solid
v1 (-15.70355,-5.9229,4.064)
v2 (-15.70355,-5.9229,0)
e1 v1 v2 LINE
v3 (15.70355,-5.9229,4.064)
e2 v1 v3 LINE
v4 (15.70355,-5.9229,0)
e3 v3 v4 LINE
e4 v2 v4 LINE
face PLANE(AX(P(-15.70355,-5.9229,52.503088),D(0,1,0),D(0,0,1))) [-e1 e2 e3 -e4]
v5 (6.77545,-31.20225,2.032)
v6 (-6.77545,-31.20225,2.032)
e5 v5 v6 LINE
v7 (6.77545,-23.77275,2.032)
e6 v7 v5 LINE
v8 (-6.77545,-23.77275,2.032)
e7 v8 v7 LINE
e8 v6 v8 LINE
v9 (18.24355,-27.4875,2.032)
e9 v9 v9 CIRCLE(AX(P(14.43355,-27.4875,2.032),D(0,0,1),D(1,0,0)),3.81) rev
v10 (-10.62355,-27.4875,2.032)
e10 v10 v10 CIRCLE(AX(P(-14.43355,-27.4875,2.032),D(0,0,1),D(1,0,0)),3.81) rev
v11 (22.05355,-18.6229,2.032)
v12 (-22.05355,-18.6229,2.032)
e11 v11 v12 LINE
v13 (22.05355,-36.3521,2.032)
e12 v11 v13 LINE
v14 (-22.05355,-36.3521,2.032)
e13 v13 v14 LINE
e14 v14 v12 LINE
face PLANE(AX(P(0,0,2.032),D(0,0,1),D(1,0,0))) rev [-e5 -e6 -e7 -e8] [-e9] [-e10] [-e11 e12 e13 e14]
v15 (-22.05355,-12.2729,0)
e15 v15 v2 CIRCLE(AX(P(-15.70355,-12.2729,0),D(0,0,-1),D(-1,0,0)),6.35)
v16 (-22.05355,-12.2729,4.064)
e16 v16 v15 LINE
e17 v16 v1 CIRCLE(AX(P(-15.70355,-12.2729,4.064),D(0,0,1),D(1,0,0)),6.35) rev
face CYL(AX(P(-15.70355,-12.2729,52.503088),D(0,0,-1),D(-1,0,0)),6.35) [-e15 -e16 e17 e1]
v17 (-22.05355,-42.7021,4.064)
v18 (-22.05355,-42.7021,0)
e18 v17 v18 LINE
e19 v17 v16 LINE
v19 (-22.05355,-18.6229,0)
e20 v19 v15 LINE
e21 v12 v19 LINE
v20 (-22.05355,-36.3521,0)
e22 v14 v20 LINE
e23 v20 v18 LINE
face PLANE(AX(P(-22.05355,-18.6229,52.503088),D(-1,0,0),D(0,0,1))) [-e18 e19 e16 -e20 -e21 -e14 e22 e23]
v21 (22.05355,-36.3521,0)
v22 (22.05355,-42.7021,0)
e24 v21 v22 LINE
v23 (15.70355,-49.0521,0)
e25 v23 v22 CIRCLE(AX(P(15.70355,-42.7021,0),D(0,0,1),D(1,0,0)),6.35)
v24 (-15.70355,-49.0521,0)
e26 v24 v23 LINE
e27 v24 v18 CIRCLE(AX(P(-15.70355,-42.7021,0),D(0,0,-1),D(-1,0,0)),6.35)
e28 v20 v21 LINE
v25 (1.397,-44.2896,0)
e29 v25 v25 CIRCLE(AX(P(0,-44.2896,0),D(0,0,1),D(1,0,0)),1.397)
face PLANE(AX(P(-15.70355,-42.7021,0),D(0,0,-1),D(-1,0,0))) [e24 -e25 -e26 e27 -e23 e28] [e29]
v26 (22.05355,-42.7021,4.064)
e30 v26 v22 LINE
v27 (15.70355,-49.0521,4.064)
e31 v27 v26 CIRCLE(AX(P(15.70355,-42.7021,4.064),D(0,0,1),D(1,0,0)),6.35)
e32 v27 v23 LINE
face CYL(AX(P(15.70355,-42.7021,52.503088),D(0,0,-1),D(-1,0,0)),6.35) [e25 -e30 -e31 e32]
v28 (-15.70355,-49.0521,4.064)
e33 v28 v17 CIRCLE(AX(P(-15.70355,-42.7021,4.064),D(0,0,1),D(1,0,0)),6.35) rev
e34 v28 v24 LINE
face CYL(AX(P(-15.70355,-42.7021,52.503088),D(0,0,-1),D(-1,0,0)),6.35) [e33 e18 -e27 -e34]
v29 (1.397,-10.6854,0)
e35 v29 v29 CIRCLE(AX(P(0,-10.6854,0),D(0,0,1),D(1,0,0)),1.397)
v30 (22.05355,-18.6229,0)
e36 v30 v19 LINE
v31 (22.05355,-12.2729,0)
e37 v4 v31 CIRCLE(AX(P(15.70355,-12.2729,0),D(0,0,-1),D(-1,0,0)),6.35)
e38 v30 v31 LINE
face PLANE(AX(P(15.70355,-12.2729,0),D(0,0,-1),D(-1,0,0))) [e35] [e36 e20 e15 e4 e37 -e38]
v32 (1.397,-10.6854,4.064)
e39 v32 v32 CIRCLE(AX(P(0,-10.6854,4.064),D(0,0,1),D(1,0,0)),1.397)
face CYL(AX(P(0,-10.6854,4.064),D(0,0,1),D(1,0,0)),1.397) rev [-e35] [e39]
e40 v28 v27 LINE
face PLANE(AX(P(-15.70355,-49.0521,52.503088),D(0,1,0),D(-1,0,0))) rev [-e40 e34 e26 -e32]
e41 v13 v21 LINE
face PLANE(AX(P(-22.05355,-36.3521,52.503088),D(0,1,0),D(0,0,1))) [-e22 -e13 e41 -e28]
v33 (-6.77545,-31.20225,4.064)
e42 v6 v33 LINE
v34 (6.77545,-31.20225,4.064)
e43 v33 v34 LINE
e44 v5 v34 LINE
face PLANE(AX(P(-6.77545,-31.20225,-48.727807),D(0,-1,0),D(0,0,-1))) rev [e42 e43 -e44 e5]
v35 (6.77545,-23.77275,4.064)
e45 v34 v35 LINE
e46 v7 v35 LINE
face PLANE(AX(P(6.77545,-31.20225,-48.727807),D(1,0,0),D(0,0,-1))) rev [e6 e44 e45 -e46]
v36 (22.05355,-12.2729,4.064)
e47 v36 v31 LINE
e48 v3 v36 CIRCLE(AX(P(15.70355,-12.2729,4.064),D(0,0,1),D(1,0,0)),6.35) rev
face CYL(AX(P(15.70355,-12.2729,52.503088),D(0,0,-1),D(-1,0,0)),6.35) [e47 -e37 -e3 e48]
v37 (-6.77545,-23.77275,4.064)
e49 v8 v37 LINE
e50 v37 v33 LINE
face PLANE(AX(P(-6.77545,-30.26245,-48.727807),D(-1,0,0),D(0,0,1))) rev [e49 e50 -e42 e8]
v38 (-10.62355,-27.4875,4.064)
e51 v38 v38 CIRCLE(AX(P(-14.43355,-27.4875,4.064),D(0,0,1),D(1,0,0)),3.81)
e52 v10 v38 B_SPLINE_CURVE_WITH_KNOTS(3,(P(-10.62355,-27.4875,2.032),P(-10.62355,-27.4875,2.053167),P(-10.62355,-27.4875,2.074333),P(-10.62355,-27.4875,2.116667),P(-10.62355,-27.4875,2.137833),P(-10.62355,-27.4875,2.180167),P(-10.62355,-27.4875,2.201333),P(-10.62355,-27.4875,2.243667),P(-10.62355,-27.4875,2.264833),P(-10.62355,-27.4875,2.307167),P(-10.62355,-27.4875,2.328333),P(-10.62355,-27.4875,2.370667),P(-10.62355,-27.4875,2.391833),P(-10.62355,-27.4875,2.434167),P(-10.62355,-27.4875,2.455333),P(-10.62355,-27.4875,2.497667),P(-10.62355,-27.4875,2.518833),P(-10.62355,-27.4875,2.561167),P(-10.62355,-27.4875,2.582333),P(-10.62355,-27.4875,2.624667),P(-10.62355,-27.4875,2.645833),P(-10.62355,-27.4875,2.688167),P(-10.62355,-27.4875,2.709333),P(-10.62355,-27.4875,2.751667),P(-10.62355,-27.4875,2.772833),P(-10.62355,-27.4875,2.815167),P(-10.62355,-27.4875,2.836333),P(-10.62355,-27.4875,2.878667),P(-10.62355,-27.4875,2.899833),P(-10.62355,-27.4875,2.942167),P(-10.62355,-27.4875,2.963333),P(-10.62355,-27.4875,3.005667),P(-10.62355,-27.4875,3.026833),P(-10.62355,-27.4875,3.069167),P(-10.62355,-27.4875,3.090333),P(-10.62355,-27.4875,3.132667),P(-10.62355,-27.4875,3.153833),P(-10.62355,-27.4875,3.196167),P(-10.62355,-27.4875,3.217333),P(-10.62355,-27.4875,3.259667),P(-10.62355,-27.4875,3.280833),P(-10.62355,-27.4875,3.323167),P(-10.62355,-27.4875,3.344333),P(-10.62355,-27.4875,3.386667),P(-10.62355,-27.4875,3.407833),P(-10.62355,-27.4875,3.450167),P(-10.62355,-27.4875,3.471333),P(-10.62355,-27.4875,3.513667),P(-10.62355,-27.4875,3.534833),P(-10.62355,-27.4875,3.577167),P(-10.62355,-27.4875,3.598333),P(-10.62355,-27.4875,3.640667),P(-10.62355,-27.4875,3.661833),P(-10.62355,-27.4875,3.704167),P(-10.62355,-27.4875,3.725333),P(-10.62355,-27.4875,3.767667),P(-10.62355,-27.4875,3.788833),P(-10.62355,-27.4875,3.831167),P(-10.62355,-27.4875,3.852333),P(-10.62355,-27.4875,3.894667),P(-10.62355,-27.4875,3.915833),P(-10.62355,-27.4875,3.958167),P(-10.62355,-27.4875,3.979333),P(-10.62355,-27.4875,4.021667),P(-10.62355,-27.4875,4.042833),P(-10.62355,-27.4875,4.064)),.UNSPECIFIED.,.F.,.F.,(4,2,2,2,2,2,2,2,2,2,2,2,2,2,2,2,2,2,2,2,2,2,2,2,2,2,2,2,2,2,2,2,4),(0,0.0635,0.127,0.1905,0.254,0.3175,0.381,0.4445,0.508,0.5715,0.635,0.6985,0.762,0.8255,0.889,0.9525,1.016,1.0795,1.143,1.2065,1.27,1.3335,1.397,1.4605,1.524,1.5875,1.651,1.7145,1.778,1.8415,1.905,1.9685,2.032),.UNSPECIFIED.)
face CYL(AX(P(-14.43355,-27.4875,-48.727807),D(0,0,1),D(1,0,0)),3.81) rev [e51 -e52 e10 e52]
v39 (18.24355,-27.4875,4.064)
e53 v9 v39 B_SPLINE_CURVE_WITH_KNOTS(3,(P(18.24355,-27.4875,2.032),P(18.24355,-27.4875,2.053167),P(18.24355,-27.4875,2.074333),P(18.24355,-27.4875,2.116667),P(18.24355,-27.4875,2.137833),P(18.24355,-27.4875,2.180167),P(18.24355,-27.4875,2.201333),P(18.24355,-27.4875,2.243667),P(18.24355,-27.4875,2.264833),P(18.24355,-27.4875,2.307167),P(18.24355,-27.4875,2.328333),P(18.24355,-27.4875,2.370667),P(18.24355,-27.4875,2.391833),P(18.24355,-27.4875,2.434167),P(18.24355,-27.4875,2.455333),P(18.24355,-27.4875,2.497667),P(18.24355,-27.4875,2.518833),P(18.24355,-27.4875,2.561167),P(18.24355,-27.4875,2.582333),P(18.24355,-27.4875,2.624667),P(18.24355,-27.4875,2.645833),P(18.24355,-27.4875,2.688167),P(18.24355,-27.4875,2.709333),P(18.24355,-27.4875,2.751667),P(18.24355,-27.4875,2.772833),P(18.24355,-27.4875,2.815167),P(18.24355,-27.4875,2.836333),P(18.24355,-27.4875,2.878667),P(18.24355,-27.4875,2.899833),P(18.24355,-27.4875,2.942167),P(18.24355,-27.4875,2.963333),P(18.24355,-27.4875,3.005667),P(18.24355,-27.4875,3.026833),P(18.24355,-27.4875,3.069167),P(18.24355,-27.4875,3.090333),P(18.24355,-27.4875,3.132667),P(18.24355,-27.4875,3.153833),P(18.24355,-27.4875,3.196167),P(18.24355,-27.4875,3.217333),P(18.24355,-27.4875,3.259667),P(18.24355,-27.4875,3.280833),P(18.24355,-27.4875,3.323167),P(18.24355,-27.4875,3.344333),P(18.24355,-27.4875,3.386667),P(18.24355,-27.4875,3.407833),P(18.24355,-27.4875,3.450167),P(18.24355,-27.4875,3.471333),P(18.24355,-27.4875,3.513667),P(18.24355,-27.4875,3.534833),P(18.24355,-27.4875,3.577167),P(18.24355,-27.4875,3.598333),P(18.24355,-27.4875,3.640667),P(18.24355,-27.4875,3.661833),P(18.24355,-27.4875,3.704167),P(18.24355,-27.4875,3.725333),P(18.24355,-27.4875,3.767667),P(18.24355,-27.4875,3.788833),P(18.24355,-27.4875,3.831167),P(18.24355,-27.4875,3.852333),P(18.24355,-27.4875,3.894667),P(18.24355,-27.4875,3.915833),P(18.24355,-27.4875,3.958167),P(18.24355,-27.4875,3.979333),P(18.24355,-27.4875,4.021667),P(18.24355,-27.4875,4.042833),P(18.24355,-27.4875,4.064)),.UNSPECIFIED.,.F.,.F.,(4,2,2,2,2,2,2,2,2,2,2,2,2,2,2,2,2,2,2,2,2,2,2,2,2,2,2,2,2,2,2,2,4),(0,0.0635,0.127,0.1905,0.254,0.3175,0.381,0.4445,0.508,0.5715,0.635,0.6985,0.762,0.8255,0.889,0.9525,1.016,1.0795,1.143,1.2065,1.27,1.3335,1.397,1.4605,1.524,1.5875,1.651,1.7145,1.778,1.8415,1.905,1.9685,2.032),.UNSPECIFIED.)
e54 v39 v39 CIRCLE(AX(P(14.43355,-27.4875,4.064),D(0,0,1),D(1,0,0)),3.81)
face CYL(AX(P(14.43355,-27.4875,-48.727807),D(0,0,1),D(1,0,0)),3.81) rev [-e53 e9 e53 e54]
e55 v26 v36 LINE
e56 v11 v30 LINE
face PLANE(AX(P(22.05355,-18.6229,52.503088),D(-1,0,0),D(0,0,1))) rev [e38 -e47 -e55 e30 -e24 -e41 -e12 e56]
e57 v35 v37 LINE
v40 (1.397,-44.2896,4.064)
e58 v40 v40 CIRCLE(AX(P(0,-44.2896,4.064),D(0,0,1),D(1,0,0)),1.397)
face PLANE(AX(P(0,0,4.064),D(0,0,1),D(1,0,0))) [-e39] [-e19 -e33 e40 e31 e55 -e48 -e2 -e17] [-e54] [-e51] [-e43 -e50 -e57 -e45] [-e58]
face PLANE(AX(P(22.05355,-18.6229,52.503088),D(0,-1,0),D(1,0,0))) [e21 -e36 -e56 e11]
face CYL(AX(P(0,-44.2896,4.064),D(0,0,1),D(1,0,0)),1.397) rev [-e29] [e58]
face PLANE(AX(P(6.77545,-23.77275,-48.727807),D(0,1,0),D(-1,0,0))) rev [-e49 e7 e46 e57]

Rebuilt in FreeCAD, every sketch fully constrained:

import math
import FreeCAD as App
import Part
import Sketcher
Q = App.Units.Quantity


def add_polygon(sketch, points):
    """Adds a closed chain of lines whose ends are joined by coincident constraints."""
    first, n = sketch.GeometryCount, len(points)
    for a, b in zip(points, points[1:] + points[:1]):
        sketch.addGeometry(Part.LineSegment(App.Vector(*a, 0), App.Vector(*b, 0)), False)
    for i in range(n):
        sketch.addConstraint(Sketcher.Constraint("Coincident", first + i, 2, first + (i + 1) % n, 1))

doc = App.newDocument("Part")
body = doc.addObject("PartDesign::Body", "Body")

# Sketch on XY plane
sketch1 = doc.addObject("Sketcher::SketchObject", "Sketch")
body.addObject(sketch1)
sketch1.AttachmentSupport = (doc.XY_Plane, [""])
sketch1.MapMode = "FlatFace"
sketch1.addGeometry([
    Part.LineSegment(App.Vector(-22.05355, -12.2729, 0), App.Vector(-22.05355, -18.6229, 0)),  # 0
    Part.LineSegment(App.Vector(-22.05355, -18.6229, 0), App.Vector(22.05355, -18.6229, 0)),  # 1
    Part.LineSegment(App.Vector(22.05355, -18.6229, 0), App.Vector(22.05355, -12.2729, 0)),  # 2
    Part.ArcOfCircle(Part.Circle(App.Vector(15.70355, -12.2729, 0), App.Vector(0, 0, 1), 6.35), math.radians(0), math.radians(90)),  # 3
    Part.LineSegment(App.Vector(15.70355, -5.9229, 0), App.Vector(-15.70355, -5.9229, 0)),  # 4
    Part.ArcOfCircle(Part.Circle(App.Vector(-15.70355, -12.2729, 0), App.Vector(0, 0, 1), 6.35), math.radians(90), math.radians(180)),  # 5
], False)
sketch1.addConstraint([
    Sketcher.Constraint("Coincident", 0, 2, 1, 1),
    Sketcher.Constraint("Coincident", 1, 2, 2, 1),
    Sketcher.Constraint("Tangent", 2, 2, 3, 1),
    Sketcher.Constraint("Tangent", 3, 2, 4, 1),
    Sketcher.Constraint("Tangent", 4, 2, 5, 1),
    Sketcher.Constraint("Tangent", 5, 2, 0, 1),
    Sketcher.Constraint("Vertical", 0),
    Sketcher.Constraint("Horizontal", 1),
    Sketcher.Constraint("Vertical", 2),
    Sketcher.Constraint("Horizontal", 4),
    Sketcher.Constraint("Equal", 3, 5),
    Sketcher.Constraint("Radius", 3, Q("0.25 in")),
    Sketcher.Constraint("DistanceY", 0, 2, 0, 1, Q("0.25 in")),
    Sketcher.Constraint("DistanceX", 1, 1, 1, 2, Q("1.7365 in")),
    Sketcher.Constraint("DistanceY", 3, 3, -1, 1, 12.2729),
    Sketcher.Constraint("DistanceX", -1, 1, 3, 3, 15.70355),
])
pad1 = doc.addObject("PartDesign::Pad", "Pad")
body.addObject(pad1)
pad1.Profile = sketch1
pad1.Length = Q("0.16 in")
body2 = doc.addObject("PartDesign::Body", "Body001")

# Sketch on XY plane
sketch2 = doc.addObject("Sketcher::SketchObject", "Sketch001")
body2.addObject(sketch2)
sketch2.AttachmentSupport = (doc.getObject("XY_Plane001"), [""])
sketch2.MapMode = "FlatFace"
sketch2.addGeometry([
    Part.LineSegment(App.Vector(22.05355, -36.3521, 0), App.Vector(-22.05355, -36.3521, 0)),  # 0
    Part.LineSegment(App.Vector(-22.05355, -36.3521, 0), App.Vector(-22.05355, -42.7021, 0)),  # 1
    Part.ArcOfCircle(Part.Circle(App.Vector(-15.70355, -42.7021, 0), App.Vector(0, 0, 1), 6.35), math.radians(180), math.radians(270)),  # 2
    Part.LineSegment(App.Vector(-15.70355, -49.0521, 0), App.Vector(15.70355, -49.0521, 0)),  # 3
    Part.ArcOfCircle(Part.Circle(App.Vector(15.70355, -42.7021, 0), App.Vector(0, 0, 1), 6.35), math.radians(-90), math.radians(0)),  # 4
    Part.LineSegment(App.Vector(22.05355, -42.7021, 0), App.Vector(22.05355, -36.3521, 0)),  # 5
], False)
sketch2.addConstraint([
    Sketcher.Constraint("Coincident", 0, 2, 1, 1),
    Sketcher.Constraint("Tangent", 1, 2, 2, 1),
    Sketcher.Constraint("Tangent", 2, 2, 3, 1),
    Sketcher.Constraint("Tangent", 3, 2, 4, 1),
    Sketcher.Constraint("Tangent", 4, 2, 5, 1),
    Sketcher.Constraint("Coincident", 5, 2, 0, 1),
    Sketcher.Constraint("Horizontal", 0),
    Sketcher.Constraint("Vertical", 1),
    Sketcher.Constraint("Horizontal", 3),
    Sketcher.Constraint("Vertical", 5),
    Sketcher.Constraint("Equal", 2, 4),
    Sketcher.Constraint("Radius", 2, Q("0.25 in")),
    Sketcher.Constraint("DistanceY", 1, 2, 1, 1, Q("0.25 in")),
    Sketcher.Constraint("DistanceX", 0, 2, 0, 1, Q("1.7365 in")),
    Sketcher.Constraint("DistanceY", 2, 3, -1, 1, 42.7021),
    Sketcher.Constraint("DistanceX", 2, 3, -1, 1, 15.70355),
])
pad2 = doc.addObject("PartDesign::Pad", "Pad001")
body2.addObject(pad2)
pad2.Profile = sketch2
pad2.Length = Q("0.16 in")
body.AllowCompound = True
doc.recompute()

boolean = doc.addObject("PartDesign::Boolean", "Boolean")
body.addObject(boolean)
boolean.Type = "Fuse"
boolean.addObjects([body2])

# Sketch on XY plane
sketch3 = doc.addObject("Sketcher::SketchObject", "Sketch002")
body.addObject(sketch3)
sketch3.AttachmentSupport = (doc.XY_Plane, [""])
sketch3.MapMode = "FlatFace"
sketch3.AttachmentOffset = App.Placement(App.Vector(0, 0, 0.16 * 25.4), App.Rotation())
add_polygon(sketch3, [(-22.05355, -15.4479), (-22.05355, -39.5271), (22.05355, -39.5271), (22.05355, -15.4479)])  # lines 0-3
sketch3.addGeometry(Part.Circle(App.Vector(-14.43355, -27.4875, 0), App.Vector(0, 0, 1), 3.81), False)  # 4
sketch3.addGeometry(Part.Circle(App.Vector(14.43355, -27.4875, 0), App.Vector(0, 0, 1), 3.81), False)  # 5
add_polygon(sketch3, [(-6.77545, -31.20225), (-6.77545, -23.77275), (6.77545, -23.77275), (6.77545, -31.20225)])  # lines 6-9
sketch3.addConstraint([
    Sketcher.Constraint("Vertical", 0),
    Sketcher.Constraint("Horizontal", 1),
    Sketcher.Constraint("Vertical", 2),
    Sketcher.Constraint("Horizontal", 3),
    Sketcher.Constraint("Vertical", 6),
    Sketcher.Constraint("Horizontal", 7),
    Sketcher.Constraint("Vertical", 8),
    Sketcher.Constraint("Horizontal", 9),
    Sketcher.Constraint("Equal", 4, 5),
    Sketcher.Constraint("Symmetric", 4, 3, 5, 3, -2),
    Sketcher.Constraint("Diameter", 4, Q("0.3 in")),
    Sketcher.Constraint("DistanceX", 0, 2, 4, 3, Q("0.3 in")),
    Sketcher.Constraint("DistanceX", 5, 3, 1, 2, Q("0.3 in")),
    Sketcher.Constraint("DistanceY", 0, 2, 0, 1, Q("0.948 in")),
    Sketcher.Constraint("DistanceX", 1, 1, 1, 2, Q("1.7365 in")),
    Sketcher.Constraint("DistanceX", 7, 1, 7, 2, Q("0.5335 in")),
    Sketcher.Constraint("DistanceY", 6, 1, 6, 2, Q("0.2925 in")),
    Sketcher.Constraint("DistanceY", 0, 2, 4, 3, Q("0.474 in")),
    Sketcher.Constraint("DistanceX", 6, 2, 5, 3, Q("0.835 in")),
    Sketcher.Constraint("DistanceY", 4, 3, -1, 1, 27.4875),
    Sketcher.Constraint("DistanceY", 6, 2, -1, 1, 23.77275),
])
pad3 = doc.addObject("PartDesign::Pad", "Pad002")
body.addObject(pad3)
pad3.Profile = sketch3
pad3.Length = Q("0.08 in")
pad3.Reversed = True

# Sketch on XY plane
sketch4 = doc.addObject("Sketcher::SketchObject", "Sketch003")
body.addObject(sketch4)
sketch4.AttachmentSupport = (doc.XY_Plane, [""])
sketch4.MapMode = "FlatFace"
sketch4.AttachmentOffset = App.Placement(App.Vector(0, 0, 0.16 * 25.4), App.Rotation())
sketch4.addGeometry([
    Part.Circle(App.Vector(0, -10.6854, 0), App.Vector(0, 0, 1), 1.397),
    Part.Circle(App.Vector(0, -44.2896, 0), App.Vector(0, 0, 1), 1.397),
], False)
sketch4.addConstraint([
    Sketcher.Constraint("Equal", 0, 1),
    Sketcher.Constraint("PointOnObject", 0, 3, -2),
    Sketcher.Constraint("PointOnObject", 1, 3, -2),
    Sketcher.Constraint("Diameter", 0, Q("0.11 in")),
    Sketcher.Constraint("DistanceY", 1, 3, 0, 3, Q("1.323 in")),
    Sketcher.Constraint("DistanceY", 0, 3, -1, 1, 10.6854),
])
doc.recompute()
hole = doc.addObject("PartDesign::Hole", "Hole")
body.addObject(hole)
hole.Profile = sketch4
hole.ThreadType = "None"
hole.Diameter = Q("0.11 in")
hole.DepthType = "ThroughAll"

doc.recompute()
